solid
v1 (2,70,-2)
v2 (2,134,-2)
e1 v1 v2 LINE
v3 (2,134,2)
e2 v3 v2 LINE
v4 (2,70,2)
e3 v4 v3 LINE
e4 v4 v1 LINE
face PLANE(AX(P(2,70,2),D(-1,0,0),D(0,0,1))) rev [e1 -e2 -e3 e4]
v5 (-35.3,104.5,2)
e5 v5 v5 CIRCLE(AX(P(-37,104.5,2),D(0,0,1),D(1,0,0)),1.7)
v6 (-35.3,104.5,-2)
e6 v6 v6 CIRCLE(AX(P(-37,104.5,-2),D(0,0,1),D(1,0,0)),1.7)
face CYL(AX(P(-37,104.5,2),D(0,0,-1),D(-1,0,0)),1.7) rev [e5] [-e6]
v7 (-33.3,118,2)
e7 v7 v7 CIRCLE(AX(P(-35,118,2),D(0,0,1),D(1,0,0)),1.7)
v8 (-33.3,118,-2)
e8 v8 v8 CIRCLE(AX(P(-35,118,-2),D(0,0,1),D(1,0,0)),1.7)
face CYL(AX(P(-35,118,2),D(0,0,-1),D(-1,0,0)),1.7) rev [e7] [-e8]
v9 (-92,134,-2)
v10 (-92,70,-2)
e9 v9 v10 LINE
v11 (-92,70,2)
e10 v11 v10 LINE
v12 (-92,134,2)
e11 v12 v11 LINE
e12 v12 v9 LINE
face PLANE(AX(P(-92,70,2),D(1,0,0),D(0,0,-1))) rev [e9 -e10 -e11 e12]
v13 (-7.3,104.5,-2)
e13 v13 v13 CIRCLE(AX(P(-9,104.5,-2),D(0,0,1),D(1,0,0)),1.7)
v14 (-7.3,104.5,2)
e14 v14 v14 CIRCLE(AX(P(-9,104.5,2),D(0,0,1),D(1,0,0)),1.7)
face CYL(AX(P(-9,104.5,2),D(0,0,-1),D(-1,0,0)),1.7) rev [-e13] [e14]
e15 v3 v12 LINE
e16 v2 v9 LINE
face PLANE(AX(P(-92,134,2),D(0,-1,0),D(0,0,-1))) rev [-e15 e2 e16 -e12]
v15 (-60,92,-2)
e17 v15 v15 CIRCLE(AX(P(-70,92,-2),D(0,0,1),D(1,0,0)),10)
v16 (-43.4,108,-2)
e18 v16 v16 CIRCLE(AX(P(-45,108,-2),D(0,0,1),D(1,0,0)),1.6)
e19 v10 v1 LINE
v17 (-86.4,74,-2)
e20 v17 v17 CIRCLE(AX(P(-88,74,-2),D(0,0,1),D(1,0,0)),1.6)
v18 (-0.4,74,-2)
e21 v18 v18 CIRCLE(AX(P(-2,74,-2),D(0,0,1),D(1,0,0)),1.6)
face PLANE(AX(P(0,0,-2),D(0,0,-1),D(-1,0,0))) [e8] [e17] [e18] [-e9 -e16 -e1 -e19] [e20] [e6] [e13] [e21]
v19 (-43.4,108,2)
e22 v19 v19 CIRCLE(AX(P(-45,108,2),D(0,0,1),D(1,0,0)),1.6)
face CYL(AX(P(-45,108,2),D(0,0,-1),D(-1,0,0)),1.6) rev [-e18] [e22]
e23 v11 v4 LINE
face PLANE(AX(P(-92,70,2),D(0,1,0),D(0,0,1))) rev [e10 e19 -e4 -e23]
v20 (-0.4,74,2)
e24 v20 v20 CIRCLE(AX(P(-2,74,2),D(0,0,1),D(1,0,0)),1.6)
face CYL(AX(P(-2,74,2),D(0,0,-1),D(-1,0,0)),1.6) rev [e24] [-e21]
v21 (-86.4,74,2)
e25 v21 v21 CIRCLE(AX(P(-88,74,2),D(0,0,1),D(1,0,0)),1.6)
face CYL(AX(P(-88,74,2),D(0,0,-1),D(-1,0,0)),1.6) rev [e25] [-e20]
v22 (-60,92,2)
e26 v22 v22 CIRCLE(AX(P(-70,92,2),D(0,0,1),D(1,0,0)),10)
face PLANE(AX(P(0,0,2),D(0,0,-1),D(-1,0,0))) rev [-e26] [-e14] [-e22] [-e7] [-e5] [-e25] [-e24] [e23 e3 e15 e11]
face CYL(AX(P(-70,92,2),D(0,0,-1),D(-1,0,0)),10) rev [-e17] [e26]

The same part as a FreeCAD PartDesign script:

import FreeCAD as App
import Part
import Sketcher


def add_polygon(sketch, points):
    """Adds a closed chain of lines whose ends are joined by coincident constraints."""
    first, n = sketch.GeometryCount, len(points)
    for a, b in zip(points, points[1:] + points[:1]):
        sketch.addGeometry(Part.LineSegment(App.Vector(*a, 0), App.Vector(*b, 0)), False)
    for i in range(n):
        sketch.addConstraint(Sketcher.Constraint("Coincident", first + i, 2, first + (i + 1) % n, 1))

doc = App.newDocument("Part")
body = doc.addObject("PartDesign::Body", "Body")

sketch1 = body.newObject("Sketcher::SketchObject", "Sketch")
sketch1.AttachmentSupport = (doc.getObject("XY_Plane"), [""])
sketch1.MapMode = "FlatFace"
add_polygon(sketch1, [(-92, 134), (-92, 70), (2, 70), (2, 134)])
sketch1.addGeometry(Part.Circle(App.Vector(-88, 74, 0), App.Vector(0, 0, 1), 1.6), False)
sketch1.addGeometry(Part.Circle(App.Vector(-70, 92, 0), App.Vector(0, 0, 1), 10), False)
sketch1.addGeometry(Part.Circle(App.Vector(-2, 74, 0), App.Vector(0, 0, 1), 1.6), False)
sketch1.addGeometry(Part.Circle(App.Vector(-37, 104.5, 0), App.Vector(0, 0, 1), 1.7), False)
sketch1.addGeometry(Part.Circle(App.Vector(-9, 104.5, 0), App.Vector(0, 0, 1), 1.7), False)
sketch1.addGeometry(Part.Circle(App.Vector(-45, 108, 0), App.Vector(0, 0, 1), 1.6), False)
sketch1.addGeometry(Part.Circle(App.Vector(-35, 118, 0), App.Vector(0, 0, 1), 1.7), False)
sketch1.addConstraint(Sketcher.Constraint("Vertical", 0))
sketch1.addConstraint(Sketcher.Constraint("Horizontal", 1))
sketch1.addConstraint(Sketcher.Constraint("Vertical", 2))
sketch1.addConstraint(Sketcher.Constraint("Horizontal", 3))
sketch1.addConstraint(Sketcher.Constraint("Equal", 4, 6))
sketch1.addConstraint(Sketcher.Constraint("Equal", 7, 8))
sketch1.addConstraint(Sketcher.Constraint("Equal", 6, 9))
sketch1.addConstraint(Sketcher.Constraint("Equal", 8, 10))
sketch1.addConstraint(Sketcher.Constraint("Horizontal", 4, 3, 6, 3))
sketch1.addConstraint(Sketcher.Constraint("Horizontal", 7, 3, 8, 3))
sketch1.addConstraint(Sketcher.Constraint("Diameter", 5, 20.0))
sketch1.addConstraint(Sketcher.Constraint("Diameter", 4, 3.2))
sketch1.addConstraint(Sketcher.Constraint("Diameter", 7, 3.4))
sketch1.addConstraint(Sketcher.Constraint("DistanceX", 1, 1, 1, 2, 94.0))
sketch1.addConstraint(Sketcher.Constraint("DistanceY", 0, 2, 0, 1, 64.0))
sketch1.addConstraint(Sketcher.Constraint("DistanceX", 4, 3, -1, 1, 88.0))
sketch1.addConstraint(Sketcher.Constraint("DistanceY", -1, 1, 4, 3, 74.0))
sketch1.addConstraint(Sketcher.Constraint("DistanceX", 5, 3, -1, 1, 70.0))
sketch1.addConstraint(Sketcher.Constraint("DistanceY", -1, 1, 5, 3, 92.0))
sketch1.addConstraint(Sketcher.Constraint("DistanceX", 6, 3, -1, 1, 2.0))
sketch1.addConstraint(Sketcher.Constraint("DistanceX", 7, 3, -1, 1, 37.0))
sketch1.addConstraint(Sketcher.Constraint("DistanceX", 8, 3, -1, 1, 9.0))
sketch1.addConstraint(Sketcher.Constraint("DistanceX", 9, 3, -1, 1, 45.0))
sketch1.addConstraint(Sketcher.Constraint("DistanceY", -1, 1, 9, 3, 108.0))
sketch1.addConstraint(Sketcher.Constraint("DistanceX", 10, 3, -1, 1, 35.0))
sketch1.addConstraint(Sketcher.Constraint("DistanceY", -1, 1, 10, 3, 118.0))
sketch1.addConstraint(Sketcher.Constraint("DistanceX", 0, 2, -1, 1, 92.0))
sketch1.addConstraint(Sketcher.Constraint("DistanceY", -1, 1, 0, 2, 70.0))
sketch1.addConstraint(Sketcher.Constraint("DistanceY", -1, 1, 7, 3, 104.5))
pad1 = body.newObject("PartDesign::Pad", "Pad")
pad1.Profile = sketch1
pad1.Length = 4
pad1.Midplane = True

doc.recompute()
